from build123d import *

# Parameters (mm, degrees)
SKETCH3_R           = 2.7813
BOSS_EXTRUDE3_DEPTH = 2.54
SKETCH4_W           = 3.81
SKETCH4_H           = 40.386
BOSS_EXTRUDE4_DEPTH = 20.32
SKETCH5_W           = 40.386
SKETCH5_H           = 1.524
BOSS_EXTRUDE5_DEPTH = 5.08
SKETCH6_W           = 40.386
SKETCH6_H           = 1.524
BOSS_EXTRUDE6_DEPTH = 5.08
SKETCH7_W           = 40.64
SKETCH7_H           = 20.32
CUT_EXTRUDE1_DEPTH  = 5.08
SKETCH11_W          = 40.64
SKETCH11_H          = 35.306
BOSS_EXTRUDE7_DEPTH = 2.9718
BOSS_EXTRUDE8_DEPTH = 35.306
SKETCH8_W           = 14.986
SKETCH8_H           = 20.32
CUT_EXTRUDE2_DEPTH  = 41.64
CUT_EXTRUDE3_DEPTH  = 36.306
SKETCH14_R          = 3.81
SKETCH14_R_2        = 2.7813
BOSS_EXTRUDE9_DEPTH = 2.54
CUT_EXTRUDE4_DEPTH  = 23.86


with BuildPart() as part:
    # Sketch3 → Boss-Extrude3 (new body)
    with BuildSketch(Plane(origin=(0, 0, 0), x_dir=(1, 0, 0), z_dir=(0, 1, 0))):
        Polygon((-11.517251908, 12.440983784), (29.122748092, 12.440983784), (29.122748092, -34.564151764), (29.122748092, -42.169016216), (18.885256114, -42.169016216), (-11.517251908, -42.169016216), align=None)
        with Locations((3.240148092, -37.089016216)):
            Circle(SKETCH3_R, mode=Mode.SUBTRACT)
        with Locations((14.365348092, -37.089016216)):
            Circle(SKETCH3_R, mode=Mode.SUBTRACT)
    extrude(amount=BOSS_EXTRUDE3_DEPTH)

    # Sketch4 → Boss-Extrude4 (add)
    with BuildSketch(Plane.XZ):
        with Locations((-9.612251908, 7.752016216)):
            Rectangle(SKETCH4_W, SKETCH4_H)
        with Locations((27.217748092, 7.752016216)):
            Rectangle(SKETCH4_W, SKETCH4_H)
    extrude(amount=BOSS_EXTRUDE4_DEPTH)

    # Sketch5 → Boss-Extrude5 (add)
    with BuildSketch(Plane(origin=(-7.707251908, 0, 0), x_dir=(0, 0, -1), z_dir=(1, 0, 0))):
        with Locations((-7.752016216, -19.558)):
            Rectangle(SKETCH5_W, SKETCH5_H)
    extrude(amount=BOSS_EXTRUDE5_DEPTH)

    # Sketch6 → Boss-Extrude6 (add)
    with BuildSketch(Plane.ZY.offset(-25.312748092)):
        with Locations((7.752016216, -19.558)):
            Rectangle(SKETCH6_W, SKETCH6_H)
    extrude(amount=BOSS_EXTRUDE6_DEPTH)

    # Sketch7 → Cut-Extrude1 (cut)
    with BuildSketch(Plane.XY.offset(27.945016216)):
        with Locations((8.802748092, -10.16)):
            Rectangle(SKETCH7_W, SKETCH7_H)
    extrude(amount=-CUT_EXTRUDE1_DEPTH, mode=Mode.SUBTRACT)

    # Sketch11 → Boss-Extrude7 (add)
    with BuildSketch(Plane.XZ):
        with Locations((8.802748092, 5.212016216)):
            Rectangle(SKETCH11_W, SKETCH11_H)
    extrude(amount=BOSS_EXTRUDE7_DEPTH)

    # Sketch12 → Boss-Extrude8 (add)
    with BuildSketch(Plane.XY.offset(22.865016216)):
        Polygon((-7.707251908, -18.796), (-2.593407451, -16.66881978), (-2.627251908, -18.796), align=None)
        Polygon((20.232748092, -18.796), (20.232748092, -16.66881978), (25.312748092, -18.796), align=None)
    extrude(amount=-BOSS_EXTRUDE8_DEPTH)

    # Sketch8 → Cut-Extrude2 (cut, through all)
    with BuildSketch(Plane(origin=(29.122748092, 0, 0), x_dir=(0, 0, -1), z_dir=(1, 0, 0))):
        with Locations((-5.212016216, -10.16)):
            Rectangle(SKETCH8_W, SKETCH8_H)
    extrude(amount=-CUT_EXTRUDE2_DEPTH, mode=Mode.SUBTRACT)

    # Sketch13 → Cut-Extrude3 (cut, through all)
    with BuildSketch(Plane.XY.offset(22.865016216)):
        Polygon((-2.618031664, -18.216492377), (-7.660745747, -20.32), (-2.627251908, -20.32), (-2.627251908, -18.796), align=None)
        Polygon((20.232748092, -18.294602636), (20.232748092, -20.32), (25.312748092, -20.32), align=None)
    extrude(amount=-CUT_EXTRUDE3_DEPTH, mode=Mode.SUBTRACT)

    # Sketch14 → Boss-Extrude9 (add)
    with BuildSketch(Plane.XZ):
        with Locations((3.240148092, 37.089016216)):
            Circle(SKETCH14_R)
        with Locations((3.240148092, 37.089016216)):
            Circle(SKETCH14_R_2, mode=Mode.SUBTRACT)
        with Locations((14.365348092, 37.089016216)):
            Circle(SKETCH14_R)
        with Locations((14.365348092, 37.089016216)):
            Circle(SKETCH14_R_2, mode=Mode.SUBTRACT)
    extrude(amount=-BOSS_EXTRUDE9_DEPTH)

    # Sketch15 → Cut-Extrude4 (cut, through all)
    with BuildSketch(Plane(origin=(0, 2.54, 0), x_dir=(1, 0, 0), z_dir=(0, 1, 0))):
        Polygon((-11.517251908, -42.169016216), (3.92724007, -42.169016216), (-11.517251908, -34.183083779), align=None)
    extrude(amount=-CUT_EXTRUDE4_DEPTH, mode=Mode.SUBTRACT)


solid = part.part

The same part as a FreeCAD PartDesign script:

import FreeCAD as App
import Part
import Sketcher
Q = App.Units.Quantity


def add_polygon(sketch, points):
    """Adds a closed chain of lines whose ends are joined by coincident constraints."""
    first, n = sketch.GeometryCount, len(points)
    for a, b in zip(points, points[1:] + points[:1]):
        sketch.addGeometry(Part.LineSegment(App.Vector(*a, 0), App.Vector(*b, 0)), False)
    for i in range(n):
        sketch.addConstraint(Sketcher.Constraint("Coincident", first + i, 2, first + (i + 1) % n, 1))

doc = App.newDocument("Part")
body = doc.addObject("PartDesign::Body", "Body")

sketch1 = body.newObject("Sketcher::SketchObject", "Sketch")
sketch1.AttachmentSupport = (doc.getObject("XZ_Plane"), [""])
sketch1.MapMode = "FlatFace"
add_polygon(sketch1, [(29.1, -12.4), (-11.5, -12.4), (-11.5, 42.2), (29.1, 42.2)])
sketch1.addGeometry(Part.Circle(App.Vector(14.4, 37.1, 0), App.Vector(0, 0, 1), 2.8), False)
sketch1.addGeometry(Part.Circle(App.Vector(3.2, 37.1, 0), App.Vector(0, 0, 1), 2.8), False)
sketch1.addConstraint([
    Sketcher.Constraint("Horizontal", 0),
    Sketcher.Constraint("Vertical", 1),
    Sketcher.Constraint("Horizontal", 2),
    Sketcher.Constraint("Vertical", 3),
    Sketcher.Constraint("Equal", 4, 5),
    Sketcher.Constraint("Horizontal", 4, 3, 5, 3),
    Sketcher.Constraint("Diameter", 4, Q("0.219 in")),
    Sketcher.Constraint("DistanceX", 0, 2, 0, 1, Q("1.6 in")),
    Sketcher.Constraint("DistanceY", 1, 1, 1, 2, Q("2.15 in")),
    Sketcher.Constraint("DistanceY", 5, 3, 1, 2, Q("0.2 in")),
    Sketcher.Constraint("DistanceX", 5, 3, 4, 3, Q("0.438 in")),
    Sketcher.Constraint("DistanceX", 0, 2, 5, 3, Q("0.581 in")),
    Sketcher.Constraint("DistanceX", -1, 1, 4, 3, Q("14.365348 mm")),
    Sketcher.Constraint("DistanceY", -1, 1, 4, 3, Q("37.089016 mm")),
])
pad1 = body.newObject("PartDesign::Pad", "Pad")
pad1.Profile = sketch1
pad1.Length = Q("0.1 in")
pad1.Reversed = True

sketch2 = body.newObject("Sketcher::SketchObject", "Sketch001")
sketch2.AttachmentSupport = (doc.getObject("XZ_Plane"), [""])
sketch2.MapMode = "FlatFace"
add_polygon(sketch2, [(-11.5, 27.9), (-11.5, -12.4), (-7.7, -12.4), (-7.7, 27.9)])
add_polygon(sketch2, [(25.3, 27.9), (25.3, -12.4), (29.1, -12.4), (29.1, 27.9)])
sketch2.addConstraint([
    Sketcher.Constraint("Vertical", 0),
    Sketcher.Constraint("Horizontal", 1),
    Sketcher.Constraint("Vertical", 2),
    Sketcher.Constraint("Horizontal", 3),
    Sketcher.Constraint("Vertical", 4),
    Sketcher.Constraint("Horizontal", 5),
    Sketcher.Constraint("Vertical", 6),
    Sketcher.Constraint("Horizontal", 7),
    Sketcher.Constraint("Horizontal", 1, 2, 4, 2),
    Sketcher.Constraint("Horizontal", 3, 2, 6, 2),
    Sketcher.Constraint("Equal", 3, 5),
    Sketcher.Constraint("DistanceX", 1, 1, 1, 2, Q("0.15 in")),
    Sketcher.Constraint("DistanceY", 0, 2, 0, 1, Q("1.59 in")),
    Sketcher.Constraint("DistanceX", 1, 2, 4, 2, Q("1.3 in")),
    Sketcher.Constraint("DistanceX", 0, 2, -1, 1, Q("11.517252 mm")),
    Sketcher.Constraint("DistanceY", 0, 2, -1, 1, Q("12.440984 mm")),
])
pad2 = body.newObject("PartDesign::Pad", "Pad001")
pad2.Profile = sketch2
pad2.Length = Q("0.8 in")

sketch3 = body.newObject("Sketcher::SketchObject", "Sketch002")
sketch3.AttachmentSupport = (doc.getObject("YZ_Plane"), [""])
sketch3.MapMode = "FlatFace"
sketch3.AttachmentOffset = App.Placement(App.Vector(0, 0, -7.707252), App.Rotation())
add_polygon(sketch3, [(-18.8, 27.9), (-20.3, 27.9), (-20.3, -12.4), (-18.8, -12.4)])
sketch3.addConstraint([
    Sketcher.Constraint("Horizontal", 0),
    Sketcher.Constraint("Vertical", 1),
    Sketcher.Constraint("Horizontal", 2),
    Sketcher.Constraint("Vertical", 3),
    Sketcher.Constraint("DistanceX", 0, 2, 0, 1, Q("0.06 in")),
    Sketcher.Constraint("DistanceY", 1, 2, 1, 1, Q("1.59 in")),
    Sketcher.Constraint("DistanceX", 0, 2, -1, 1, Q("0.8 in")),
    Sketcher.Constraint("DistanceY", -1, 1, 0, 2, Q("27.945016 mm")),
])
pad3 = body.newObject("PartDesign::Pad", "Pad002")
pad3.Profile = sketch3
pad3.Length = Q("0.2 in")

sketch4 = body.newObject("Sketcher::SketchObject", "Sketch003")
sketch4.AttachmentSupport = (doc.getObject("YZ_Plane"), [""])
sketch4.MapMode = "FlatFace"
sketch4.AttachmentOffset = App.Placement(App.Vector(0, 0, 25.312748), App.Rotation())
add_polygon(sketch4, [(-18.8, -12.4), (-20.3, -12.4), (-20.3, 27.9), (-18.8, 27.9)])
sketch4.addConstraint([
    Sketcher.Constraint("Horizontal", 0),
    Sketcher.Constraint("Vertical", 1),
    Sketcher.Constraint("Horizontal", 2),
    Sketcher.Constraint("Vertical", 3),
    Sketcher.Constraint("DistanceX", 0, 2, 0, 1, Q("0.06 in")),
    Sketcher.Constraint("DistanceY", 1, 1, 1, 2, Q("1.59 in")),
    Sketcher.Constraint("DistanceX", 0, 2, -1, 1, Q("0.8 in")),
    Sketcher.Constraint("DistanceY", 0, 2, -1, 1, Q("12.440984 mm")),
])
pad4 = body.newObject("PartDesign::Pad", "Pad003")
pad4.Profile = sketch4
pad4.Length = Q("0.2 in")
pad4.Reversed = True

sketch5 = body.newObject("Sketcher::SketchObject", "Sketch004")
sketch5.AttachmentSupport = (doc.getObject("XY_Plane"), [""])
sketch5.MapMode = "FlatFace"
sketch5.AttachmentOffset = App.Placement(App.Vector(0, 0, 27.945016), App.Rotation())
add_polygon(sketch5, [(-12, 0), (-12, -20), (29, -20), (29, 0)])
sketch5.addConstraint([
    Sketcher.Constraint("Vertical", 0),
    Sketcher.Constraint("Horizontal", 1),
    Sketcher.Constraint("Vertical", 2),
    Sketcher.Constraint("Horizontal", 3),
    Sketcher.Constraint("PointOnObject", 2, 2, -1),
    Sketcher.Constraint("DistanceX", 1, 1, 1, 2, Q("1.6 in")),
    Sketcher.Constraint("DistanceY", 0, 2, 0, 1, Q("0.8 in")),
    Sketcher.Constraint("DistanceX", 0, 2, -1, 1, Q("11.517252 mm")),
])
pocket1 = body.newObject("PartDesign::Pocket", "Pocket")
pocket1.Profile = sketch5
pocket1.Length = Q("0.2 in")

sketch6 = body.newObject("Sketcher::SketchObject", "Sketch005")
sketch6.AttachmentSupport = (doc.getObject("XZ_Plane"), [""])
sketch6.MapMode = "FlatFace"
add_polygon(sketch6, [(-12, 23), (-12, -12), (29, -12), (29, 23)])
sketch6.addConstraint([
    Sketcher.Constraint("Vertical", 0),
    Sketcher.Constraint("Horizontal", 1),
    Sketcher.Constraint("Vertical", 2),
    Sketcher.Constraint("Horizontal", 3),
    Sketcher.Constraint("DistanceX", 1, 1, 1, 2, Q("1.6 in")),
    Sketcher.Constraint("DistanceY", 0, 2, 0, 1, Q("1.39 in")),
    Sketcher.Constraint("DistanceX", 0, 2, -1, 1, Q("11.517252 mm")),
    Sketcher.Constraint("DistanceY", 0, 2, -1, 1, Q("12.440984 mm")),
])
pad5 = body.newObject("PartDesign::Pad", "Pad004")
pad5.Profile = sketch6
pad5.Length = Q("0.117 in")

sketch7 = body.newObject("Sketcher::SketchObject", "Sketch006")
sketch7.AttachmentSupport = (doc.getObject("XY_Plane"), [""])
sketch7.MapMode = "FlatFace"
sketch7.AttachmentOffset = App.Placement(App.Vector(0, 0, 22.865016), App.Rotation())
add_polygon(sketch7, [(-2.6, -16.7), (-7.7, -18.8), (-2.6, -18.8)])
add_polygon(sketch7, [(20.2, -16.7), (20.2, -18.8), (25.3, -18.8)])
sketch7.addConstraint([
    Sketcher.Constraint("Horizontal", 1),
    Sketcher.Constraint("Vertical", 3),
    Sketcher.Constraint("Horizontal", 4),
    Sketcher.Constraint("Horizontal", 1, 2, 3, 2),
    Sketcher.Constraint("Horizontal", 2, 2, 5, 2),
    Sketcher.Constraint("Equal", 1, 4),
    Sketcher.Constraint("DistanceX", 1, 1, 1, 2, Q("0.2 in")),
    Sketcher.Constraint("DistanceX", 1, 2, 3, 2, Q("0.9 in")),
    Sketcher.Constraint("DistanceY", 0, 2, -1, 1, Q("0.74 in")),
    Sketcher.Constraint("DistanceY", 3, 2, 3, 1, Q("2.12718 mm")),
    Sketcher.Constraint("Distance", 0, Q("5.538619 mm")),
    Sketcher.Constraint("DistanceX", 0, 2, -1, 1, Q("7.707252 mm")),
])
pad6 = body.newObject("PartDesign::Pad", "Pad005")
pad6.Profile = sketch7
pad6.Length = Q("1.39 in")
pad6.Reversed = True

sketch8 = body.newObject("Sketcher::SketchObject", "Sketch007")
sketch8.AttachmentSupport = (doc.getObject("YZ_Plane"), [""])
sketch8.MapMode = "FlatFace"
sketch8.AttachmentOffset = App.Placement(App.Vector(0, 0, 29.122748), App.Rotation())
add_polygon(sketch8, [(0, 13), (-20, 13), (-20, -2), (0, -2)])
sketch8.addConstraint([
    Sketcher.Constraint("Horizontal", 0),
    Sketcher.Constraint("Vertical", 1),
    Sketcher.Constraint("Horizontal", 2),
    Sketcher.Constraint("Vertical", 3),
    Sketcher.Constraint("PointOnObject", 2, 2, -2),
    Sketcher.Constraint("DistanceX", 0, 2, 0, 1, Q("0.8 in")),
    Sketcher.Constraint("DistanceY", 1, 2, 1, 1, Q("0.59 in")),
    Sketcher.Constraint("DistanceY", -1, 1, 0, 2, Q("12.705016 mm")),
])
pocket2 = body.newObject("PartDesign::Pocket", "Pocket001")
pocket2.Profile = sketch8
pocket2.Type = "ThroughAll"

sketch9 = body.newObject("Sketcher::SketchObject", "Sketch008")
sketch9.AttachmentSupport = (doc.getObject("XY_Plane"), [""])
sketch9.MapMode = "FlatFace"
sketch9.AttachmentOffset = App.Placement(App.Vector(0, 0, 22.865016), App.Rotation())
add_polygon(sketch9, [(-2.6, -18.2), (-7.7, -20.3), (-2.6, -20.3), (-2.6, -18.8)])
add_polygon(sketch9, [(20.2, -18.3), (20.2, -20.3), (25.3, -20.3)])
sketch9.addConstraint([
    Sketcher.Constraint("Horizontal", 1),
    Sketcher.Constraint("Vertical", 2),
    Sketcher.Constraint("Vertical", 4),
    Sketcher.Constraint("Horizontal", 5),
    Sketcher.Constraint("Horizontal", 1, 2, 4, 2),
    Sketcher.Constraint("DistanceX", 5, 1, 5, 2, Q("0.2 in")),
    Sketcher.Constraint("DistanceY", 2, 1, 2, 2, Q("0.06 in")),
    Sketcher.Constraint("DistanceY", 0, 2, -1, 1, Q("0.8 in")),
    Sketcher.Constraint("DistanceX", 1, 2, 4, 2, Q("0.9 in")),
    Sketcher.Constraint("Distance", 3, Q("0.579581 mm")),
    Sketcher.Constraint("Distance", 6, Q("5.468879 mm")),
    Sketcher.Constraint("DistanceX", 1, 1, 1, 2, Q("5.033494 mm")),
    Sketcher.Constraint("DistanceX", 1, 2, -1, 1, Q("2.627252 mm")),
    Sketcher.Constraint("DistanceX", 3, 2, -1, 1, Q("2.618032 mm")),
])
pocket3 = body.newObject("PartDesign::Pocket", "Pocket002")
pocket3.Profile = sketch9
pocket3.Type = "ThroughAll"

sketch10 = body.newObject("Sketcher::SketchObject", "Sketch009")
sketch10.AttachmentSupport = (doc.getObject("XZ_Plane"), [""])
sketch10.MapMode = "FlatFace"
sketch10.addGeometry([
    Part.Circle(App.Vector(3.2, 37.1, 0), App.Vector(0, 0, 1), 3.8),
    Part.Circle(App.Vector(3.2, 37.1, 0), App.Vector(0, 0, 1), 2.8),
    Part.Circle(App.Vector(14.4, 37.1, 0), App.Vector(0, 0, 1), 3.8),
    Part.Circle(App.Vector(14.4, 37.1, 0), App.Vector(0, 0, 1), 2.8),
], False)
sketch10.addConstraint([
    Sketcher.Constraint("Coincident", 1, 3, 0, 3),
    Sketcher.Constraint("Coincident", 3, 3, 2, 3),
    Sketcher.Constraint("Equal", 0, 2),
    Sketcher.Constraint("Equal", 1, 3),
    Sketcher.Constraint("Horizontal", 1, 3, 2, 3),
    Sketcher.Constraint("Diameter", 0, Q("0.3 in")),
    Sketcher.Constraint("Diameter", 1, Q("0.219 in")),
    Sketcher.Constraint("DistanceX", 0, 3, 2, 3, Q("0.438 in")),
    Sketcher.Constraint("DistanceX", -1, 1, 0, 3, Q("3.240148 mm")),
    Sketcher.Constraint("DistanceY", -1, 1, 0, 3, Q("37.089016 mm")),
])
pad7 = body.newObject("PartDesign::Pad", "Pad006")
pad7.Profile = sketch10
pad7.Length = Q("0.1 in")
pad7.Reversed = True

sketch11 = body.newObject("Sketcher::SketchObject", "Sketch010")
sketch11.AttachmentSupport = (doc.getObject("XZ_Plane"), [""])
sketch11.MapMode = "FlatFace"
sketch11.AttachmentOffset = App.Placement(App.Vector(0, 0, -0.1 * 25.4), App.Rotation())
add_polygon(sketch11, [(-12, 42), (4, 42), (-12, 34)])
sketch11.addConstraint([
    Sketcher.Constraint("Horizontal", 0),
    Sketcher.Constraint("Vertical", 2),
    Sketcher.Constraint("DistanceX", 0, 1, 0, 2, Q("15.444492 mm")),
    Sketcher.Constraint("Distance", 1, Q("17.386991 mm")),
    Sketcher.Constraint("DistanceX", -1, 1, 0, 2, Q("3.92724 mm")),
    Sketcher.Constraint("DistanceY", -1, 1, 0, 2, Q("42.169016 mm")),
])
pocket4 = body.newObject("PartDesign::Pocket", "Pocket003")
pocket4.Profile = sketch11
pocket4.Type = "ThroughAll"
pocket4.Reversed = True

doc.recompute()
